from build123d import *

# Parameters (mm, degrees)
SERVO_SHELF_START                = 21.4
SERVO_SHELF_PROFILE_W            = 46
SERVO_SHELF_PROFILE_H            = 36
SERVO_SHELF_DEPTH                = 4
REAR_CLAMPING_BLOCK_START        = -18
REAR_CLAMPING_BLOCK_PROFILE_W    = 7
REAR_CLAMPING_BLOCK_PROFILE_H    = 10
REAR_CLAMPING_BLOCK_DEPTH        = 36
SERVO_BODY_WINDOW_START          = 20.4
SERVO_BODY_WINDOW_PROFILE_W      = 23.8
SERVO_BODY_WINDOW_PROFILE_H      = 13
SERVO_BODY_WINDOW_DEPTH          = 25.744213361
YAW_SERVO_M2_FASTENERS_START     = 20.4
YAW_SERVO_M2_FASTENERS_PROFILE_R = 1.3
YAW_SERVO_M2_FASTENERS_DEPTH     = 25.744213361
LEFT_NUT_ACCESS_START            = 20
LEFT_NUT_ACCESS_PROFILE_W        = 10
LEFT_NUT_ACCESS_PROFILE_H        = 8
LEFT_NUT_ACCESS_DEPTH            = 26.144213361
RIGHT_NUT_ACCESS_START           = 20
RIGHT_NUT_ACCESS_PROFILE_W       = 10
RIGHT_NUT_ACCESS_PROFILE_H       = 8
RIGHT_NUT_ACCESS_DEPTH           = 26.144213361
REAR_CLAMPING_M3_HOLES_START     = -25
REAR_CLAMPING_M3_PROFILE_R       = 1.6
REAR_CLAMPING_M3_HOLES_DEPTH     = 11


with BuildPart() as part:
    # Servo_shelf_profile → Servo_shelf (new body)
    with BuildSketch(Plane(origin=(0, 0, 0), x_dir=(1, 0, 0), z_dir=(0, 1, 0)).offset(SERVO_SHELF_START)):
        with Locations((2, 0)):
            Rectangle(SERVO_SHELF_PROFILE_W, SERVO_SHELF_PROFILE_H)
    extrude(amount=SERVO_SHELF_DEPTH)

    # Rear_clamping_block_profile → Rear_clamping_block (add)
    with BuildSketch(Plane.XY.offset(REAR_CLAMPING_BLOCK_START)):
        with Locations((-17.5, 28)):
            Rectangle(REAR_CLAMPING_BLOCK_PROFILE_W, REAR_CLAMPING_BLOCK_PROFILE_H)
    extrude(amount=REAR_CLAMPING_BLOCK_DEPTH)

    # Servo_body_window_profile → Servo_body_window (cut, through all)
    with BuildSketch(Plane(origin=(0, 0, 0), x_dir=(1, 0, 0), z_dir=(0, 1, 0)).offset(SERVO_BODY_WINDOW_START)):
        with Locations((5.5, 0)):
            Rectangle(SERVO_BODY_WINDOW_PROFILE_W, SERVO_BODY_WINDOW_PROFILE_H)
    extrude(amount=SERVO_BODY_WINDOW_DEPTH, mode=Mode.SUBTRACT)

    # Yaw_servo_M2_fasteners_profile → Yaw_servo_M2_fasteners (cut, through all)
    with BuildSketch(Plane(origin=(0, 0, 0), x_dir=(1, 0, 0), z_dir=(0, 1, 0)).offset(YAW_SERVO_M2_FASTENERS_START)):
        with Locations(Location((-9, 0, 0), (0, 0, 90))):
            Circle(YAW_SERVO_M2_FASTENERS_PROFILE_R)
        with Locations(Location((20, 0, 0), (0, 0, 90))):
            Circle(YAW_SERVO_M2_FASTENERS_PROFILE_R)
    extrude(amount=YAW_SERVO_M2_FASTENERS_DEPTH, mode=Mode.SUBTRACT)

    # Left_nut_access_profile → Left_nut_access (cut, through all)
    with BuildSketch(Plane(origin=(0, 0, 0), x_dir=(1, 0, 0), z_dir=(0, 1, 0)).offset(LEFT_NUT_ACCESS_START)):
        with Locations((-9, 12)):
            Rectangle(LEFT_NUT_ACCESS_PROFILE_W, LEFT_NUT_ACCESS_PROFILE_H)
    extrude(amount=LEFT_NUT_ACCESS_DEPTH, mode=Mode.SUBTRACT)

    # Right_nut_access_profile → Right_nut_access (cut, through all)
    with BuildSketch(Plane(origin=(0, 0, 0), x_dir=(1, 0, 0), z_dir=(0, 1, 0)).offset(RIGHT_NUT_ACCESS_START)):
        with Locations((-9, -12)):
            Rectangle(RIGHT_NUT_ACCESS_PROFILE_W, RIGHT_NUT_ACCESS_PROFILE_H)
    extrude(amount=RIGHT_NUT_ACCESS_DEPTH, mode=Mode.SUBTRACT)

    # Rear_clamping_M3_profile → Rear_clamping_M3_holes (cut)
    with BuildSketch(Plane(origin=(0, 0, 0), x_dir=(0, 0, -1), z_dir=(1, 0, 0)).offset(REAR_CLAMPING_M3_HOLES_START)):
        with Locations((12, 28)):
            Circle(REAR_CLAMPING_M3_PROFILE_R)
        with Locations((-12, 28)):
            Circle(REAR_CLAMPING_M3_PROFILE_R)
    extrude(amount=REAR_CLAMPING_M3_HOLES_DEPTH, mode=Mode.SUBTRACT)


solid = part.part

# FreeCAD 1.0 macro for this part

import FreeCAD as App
import Part
import Sketcher

V = App.Vector
Q = App.Units.Quantity


def add_polygon(sketch, points):
    """Adds a closed chain of lines whose ends are joined by coincident constraints."""
    first, n = sketch.GeometryCount, len(points)
    for a, b in zip(points, points[1:] + points[:1]):
        sketch.addGeometry(Part.LineSegment(App.Vector(*a, 0), App.Vector(*b, 0)), False)
    for i in range(n):
        sketch.addConstraint(Sketcher.Constraint("Coincident", first + i, 2, first + (i + 1) % n, 1))

doc = App.newDocument("Part")
body = doc.addObject("PartDesign::Body", "Body")

sketch1 = body.newObject("Sketcher::SketchObject", "Sketch")
sketch1.AttachmentSupport = (doc.getObject("XZ_Plane"), [""])
sketch1.MapMode = "FlatFace"
sketch1.AttachmentOffset = App.Placement(V(0, 0, -21.4), App.Rotation())
add_polygon(sketch1, [(-21, -18), (-21, 18), (25, 18), (25, -18)])
sketch1.addConstraint([
    Sketcher.Constraint("Vertical", 0),
    Sketcher.Constraint("Horizontal", 1),
    Sketcher.Constraint("Vertical", 2),
    Sketcher.Constraint("Horizontal", 3),
    Sketcher.Constraint("DistanceX", 1, 1, 1, 2, Q("46 mm")),
    Sketcher.Constraint("DistanceY", 0, 1, 0, 2, Q("36 mm")),
    Sketcher.Constraint("DistanceX", 0, 2, -1, 1, Q("21 mm")),
    Sketcher.Constraint("DistanceY", -1, 1, 0, 2, Q("18 mm")),
])
pad1 = body.newObject("PartDesign::Pad", "Pad")
pad1.Profile = sketch1
pad1.Length = 4
pad1.Reversed = True

sketch2 = body.newObject("Sketcher::SketchObject", "Sketch001")
sketch2.AttachmentSupport = (doc.getObject("XY_Plane"), [""])
sketch2.MapMode = "FlatFace"
sketch2.AttachmentOffset = App.Placement(V(0, 0, -18), App.Rotation())
add_polygon(sketch2, [(-21, 33), (-21, 23), (-14, 23), (-14, 33)])
sketch2.addConstraint([
    Sketcher.Constraint("Vertical", 0),
    Sketcher.Constraint("Horizontal", 1),
    Sketcher.Constraint("Vertical", 2),
    Sketcher.Constraint("Horizontal", 3),
    Sketcher.Constraint("DistanceX", 1, 1, 1, 2, Q("7 mm")),
    Sketcher.Constraint("DistanceY", 0, 2, 0, 1, Q("10 mm")),
    Sketcher.Constraint("DistanceX", 0, 2, -1, 1, Q("21 mm")),
    Sketcher.Constraint("DistanceY", -1, 1, 0, 2, Q("23 mm")),
])
pad2 = body.newObject("PartDesign::Pad", "Pad001")
pad2.Profile = sketch2
pad2.Length = 36

sketch3 = body.newObject("Sketcher::SketchObject", "Sketch002")
sketch3.AttachmentSupport = (doc.getObject("XZ_Plane"), [""])
sketch3.MapMode = "FlatFace"
sketch3.AttachmentOffset = App.Placement(V(0, 0, -20.4), App.Rotation())
add_polygon(sketch3, [(-6.4, -6.5), (-6.4, 6.5), (17.4, 6.5), (17.4, -6.5)])
sketch3.addConstraint([
    Sketcher.Constraint("Vertical", 0),
    Sketcher.Constraint("Horizontal", 1),
    Sketcher.Constraint("Vertical", 2),
    Sketcher.Constraint("Horizontal", 3),
    Sketcher.Constraint("DistanceY", 0, 1, 0, 2, Q("13 mm")),
    Sketcher.Constraint("DistanceX", 1, 1, 1, 2, Q("23.8 mm")),
    Sketcher.Constraint("DistanceX", 0, 2, -1, 1, Q("6.4 mm")),
    Sketcher.Constraint("DistanceY", -1, 1, 0, 2, Q("6.5 mm")),
])
pocket1 = body.newObject("PartDesign::Pocket", "Pocket")
pocket1.Profile = sketch3
pocket1.Type = "ThroughAll"

sketch4 = body.newObject("Sketcher::SketchObject", "Sketch003")
sketch4.AttachmentSupport = (doc.getObject("XZ_Plane"), [""])
sketch4.MapMode = "FlatFace"
sketch4.AttachmentOffset = App.Placement(V(0, 0, -20.4), App.Rotation())
sketch4.addGeometry([
    Part.Circle(V(-9, 0, 0), V(0, 0, 1), 1.3),
    Part.Circle(V(20, 0, 0), V(0, 0, 1), 1.3),
], False)
sketch4.addConstraint([
    Sketcher.Constraint("Equal", 0, 1),
    Sketcher.Constraint("PointOnObject", 0, 3, -1),
    Sketcher.Constraint("PointOnObject", 1, 3, -1),
    Sketcher.Constraint("Diameter", 0, Q("2.6 mm")),
    Sketcher.Constraint("DistanceX", 0, 3, -1, 1, Q("9 mm")),
    Sketcher.Constraint("DistanceX", -1, 1, 1, 3, Q("20 mm")),
])
pocket2 = body.newObject("PartDesign::Pocket", "Pocket001")
pocket2.Profile = sketch4
pocket2.Type = "ThroughAll"

sketch5 = body.newObject("Sketcher::SketchObject", "Sketch004")
sketch5.AttachmentSupport = (doc.getObject("XZ_Plane"), [""])
sketch5.MapMode = "FlatFace"
sketch5.AttachmentOffset = App.Placement(V(0, 0, -20), App.Rotation())
add_polygon(sketch5, [(-14, -16), (-14, -8), (-4, -8), (-4, -16)])
sketch5.addConstraint([
    Sketcher.Constraint("Vertical", 0),
    Sketcher.Constraint("Horizontal", 1),
    Sketcher.Constraint("Vertical", 2),
    Sketcher.Constraint("Horizontal", 3),
    Sketcher.Constraint("DistanceX", 1, 1, 1, 2, Q("10 mm")),
    Sketcher.Constraint("DistanceY", 0, 1, 0, 2, Q("8 mm")),
    Sketcher.Constraint("DistanceX", 0, 2, -1, 1, Q("14 mm")),
    Sketcher.Constraint("DistanceY", 0, 2, -1, 1, Q("8 mm")),
])
pocket3 = body.newObject("PartDesign::Pocket", "Pocket002")
pocket3.Profile = sketch5
pocket3.Type = "ThroughAll"

sketch6 = body.newObject("Sketcher::SketchObject", "Sketch005")
sketch6.AttachmentSupport = (doc.getObject("XZ_Plane"), [""])
sketch6.MapMode = "FlatFace"
sketch6.AttachmentOffset = App.Placement(V(0, 0, -20), App.Rotation())
add_polygon(sketch6, [(-14, 8), (-14, 16), (-4, 16), (-4, 8)])
sketch6.addConstraint([
    Sketcher.Constraint("Vertical", 0),
    Sketcher.Constraint("Horizontal", 1),
    Sketcher.Constraint("Vertical", 2),
    Sketcher.Constraint("Horizontal", 3),
    Sketcher.Constraint("DistanceX", 1, 1, 1, 2, Q("10 mm")),
    Sketcher.Constraint("DistanceY", 0, 1, 0, 2, Q("8 mm")),
    Sketcher.Constraint("DistanceX", 0, 2, -1, 1, Q("14 mm")),
    Sketcher.Constraint("DistanceY", -1, 1, 0, 2, Q("16 mm")),
])
pocket4 = body.newObject("PartDesign::Pocket", "Pocket003")
pocket4.Profile = sketch6
pocket4.Type = "ThroughAll"

sketch7 = body.newObject("Sketcher::SketchObject", "Sketch006")
sketch7.AttachmentSupport = (doc.getObject("YZ_Plane"), [""])
sketch7.MapMode = "FlatFace"
sketch7.AttachmentOffset = App.Placement(V(0, 0, -25), App.Rotation())
sketch7.addGeometry([
    Part.Circle(V(28, -12, 0), V(0, 0, 1), 1.6),
    Part.Circle(V(28, 12, 0), V(0, 0, 1), 1.6),
], False)
sketch7.addConstraint([
    Sketcher.Constraint("Equal", 0, 1),
    Sketcher.Constraint("Symmetric", 0, 3, 1, 3, -1),
    Sketcher.Constraint("Diameter", 0, Q("3.2 mm")),
    Sketcher.Constraint("DistanceX", -1, 1, 0, 3, Q("28 mm")),
    Sketcher.Constraint("DistanceY", 0, 3, -1, 1, Q("12 mm")),
])
pocket5 = body.newObject("PartDesign::Pocket", "Pocket004")
pocket5.Profile = sketch7
pocket5.Length = 11
pocket5.Reversed = True

doc.recompute()
